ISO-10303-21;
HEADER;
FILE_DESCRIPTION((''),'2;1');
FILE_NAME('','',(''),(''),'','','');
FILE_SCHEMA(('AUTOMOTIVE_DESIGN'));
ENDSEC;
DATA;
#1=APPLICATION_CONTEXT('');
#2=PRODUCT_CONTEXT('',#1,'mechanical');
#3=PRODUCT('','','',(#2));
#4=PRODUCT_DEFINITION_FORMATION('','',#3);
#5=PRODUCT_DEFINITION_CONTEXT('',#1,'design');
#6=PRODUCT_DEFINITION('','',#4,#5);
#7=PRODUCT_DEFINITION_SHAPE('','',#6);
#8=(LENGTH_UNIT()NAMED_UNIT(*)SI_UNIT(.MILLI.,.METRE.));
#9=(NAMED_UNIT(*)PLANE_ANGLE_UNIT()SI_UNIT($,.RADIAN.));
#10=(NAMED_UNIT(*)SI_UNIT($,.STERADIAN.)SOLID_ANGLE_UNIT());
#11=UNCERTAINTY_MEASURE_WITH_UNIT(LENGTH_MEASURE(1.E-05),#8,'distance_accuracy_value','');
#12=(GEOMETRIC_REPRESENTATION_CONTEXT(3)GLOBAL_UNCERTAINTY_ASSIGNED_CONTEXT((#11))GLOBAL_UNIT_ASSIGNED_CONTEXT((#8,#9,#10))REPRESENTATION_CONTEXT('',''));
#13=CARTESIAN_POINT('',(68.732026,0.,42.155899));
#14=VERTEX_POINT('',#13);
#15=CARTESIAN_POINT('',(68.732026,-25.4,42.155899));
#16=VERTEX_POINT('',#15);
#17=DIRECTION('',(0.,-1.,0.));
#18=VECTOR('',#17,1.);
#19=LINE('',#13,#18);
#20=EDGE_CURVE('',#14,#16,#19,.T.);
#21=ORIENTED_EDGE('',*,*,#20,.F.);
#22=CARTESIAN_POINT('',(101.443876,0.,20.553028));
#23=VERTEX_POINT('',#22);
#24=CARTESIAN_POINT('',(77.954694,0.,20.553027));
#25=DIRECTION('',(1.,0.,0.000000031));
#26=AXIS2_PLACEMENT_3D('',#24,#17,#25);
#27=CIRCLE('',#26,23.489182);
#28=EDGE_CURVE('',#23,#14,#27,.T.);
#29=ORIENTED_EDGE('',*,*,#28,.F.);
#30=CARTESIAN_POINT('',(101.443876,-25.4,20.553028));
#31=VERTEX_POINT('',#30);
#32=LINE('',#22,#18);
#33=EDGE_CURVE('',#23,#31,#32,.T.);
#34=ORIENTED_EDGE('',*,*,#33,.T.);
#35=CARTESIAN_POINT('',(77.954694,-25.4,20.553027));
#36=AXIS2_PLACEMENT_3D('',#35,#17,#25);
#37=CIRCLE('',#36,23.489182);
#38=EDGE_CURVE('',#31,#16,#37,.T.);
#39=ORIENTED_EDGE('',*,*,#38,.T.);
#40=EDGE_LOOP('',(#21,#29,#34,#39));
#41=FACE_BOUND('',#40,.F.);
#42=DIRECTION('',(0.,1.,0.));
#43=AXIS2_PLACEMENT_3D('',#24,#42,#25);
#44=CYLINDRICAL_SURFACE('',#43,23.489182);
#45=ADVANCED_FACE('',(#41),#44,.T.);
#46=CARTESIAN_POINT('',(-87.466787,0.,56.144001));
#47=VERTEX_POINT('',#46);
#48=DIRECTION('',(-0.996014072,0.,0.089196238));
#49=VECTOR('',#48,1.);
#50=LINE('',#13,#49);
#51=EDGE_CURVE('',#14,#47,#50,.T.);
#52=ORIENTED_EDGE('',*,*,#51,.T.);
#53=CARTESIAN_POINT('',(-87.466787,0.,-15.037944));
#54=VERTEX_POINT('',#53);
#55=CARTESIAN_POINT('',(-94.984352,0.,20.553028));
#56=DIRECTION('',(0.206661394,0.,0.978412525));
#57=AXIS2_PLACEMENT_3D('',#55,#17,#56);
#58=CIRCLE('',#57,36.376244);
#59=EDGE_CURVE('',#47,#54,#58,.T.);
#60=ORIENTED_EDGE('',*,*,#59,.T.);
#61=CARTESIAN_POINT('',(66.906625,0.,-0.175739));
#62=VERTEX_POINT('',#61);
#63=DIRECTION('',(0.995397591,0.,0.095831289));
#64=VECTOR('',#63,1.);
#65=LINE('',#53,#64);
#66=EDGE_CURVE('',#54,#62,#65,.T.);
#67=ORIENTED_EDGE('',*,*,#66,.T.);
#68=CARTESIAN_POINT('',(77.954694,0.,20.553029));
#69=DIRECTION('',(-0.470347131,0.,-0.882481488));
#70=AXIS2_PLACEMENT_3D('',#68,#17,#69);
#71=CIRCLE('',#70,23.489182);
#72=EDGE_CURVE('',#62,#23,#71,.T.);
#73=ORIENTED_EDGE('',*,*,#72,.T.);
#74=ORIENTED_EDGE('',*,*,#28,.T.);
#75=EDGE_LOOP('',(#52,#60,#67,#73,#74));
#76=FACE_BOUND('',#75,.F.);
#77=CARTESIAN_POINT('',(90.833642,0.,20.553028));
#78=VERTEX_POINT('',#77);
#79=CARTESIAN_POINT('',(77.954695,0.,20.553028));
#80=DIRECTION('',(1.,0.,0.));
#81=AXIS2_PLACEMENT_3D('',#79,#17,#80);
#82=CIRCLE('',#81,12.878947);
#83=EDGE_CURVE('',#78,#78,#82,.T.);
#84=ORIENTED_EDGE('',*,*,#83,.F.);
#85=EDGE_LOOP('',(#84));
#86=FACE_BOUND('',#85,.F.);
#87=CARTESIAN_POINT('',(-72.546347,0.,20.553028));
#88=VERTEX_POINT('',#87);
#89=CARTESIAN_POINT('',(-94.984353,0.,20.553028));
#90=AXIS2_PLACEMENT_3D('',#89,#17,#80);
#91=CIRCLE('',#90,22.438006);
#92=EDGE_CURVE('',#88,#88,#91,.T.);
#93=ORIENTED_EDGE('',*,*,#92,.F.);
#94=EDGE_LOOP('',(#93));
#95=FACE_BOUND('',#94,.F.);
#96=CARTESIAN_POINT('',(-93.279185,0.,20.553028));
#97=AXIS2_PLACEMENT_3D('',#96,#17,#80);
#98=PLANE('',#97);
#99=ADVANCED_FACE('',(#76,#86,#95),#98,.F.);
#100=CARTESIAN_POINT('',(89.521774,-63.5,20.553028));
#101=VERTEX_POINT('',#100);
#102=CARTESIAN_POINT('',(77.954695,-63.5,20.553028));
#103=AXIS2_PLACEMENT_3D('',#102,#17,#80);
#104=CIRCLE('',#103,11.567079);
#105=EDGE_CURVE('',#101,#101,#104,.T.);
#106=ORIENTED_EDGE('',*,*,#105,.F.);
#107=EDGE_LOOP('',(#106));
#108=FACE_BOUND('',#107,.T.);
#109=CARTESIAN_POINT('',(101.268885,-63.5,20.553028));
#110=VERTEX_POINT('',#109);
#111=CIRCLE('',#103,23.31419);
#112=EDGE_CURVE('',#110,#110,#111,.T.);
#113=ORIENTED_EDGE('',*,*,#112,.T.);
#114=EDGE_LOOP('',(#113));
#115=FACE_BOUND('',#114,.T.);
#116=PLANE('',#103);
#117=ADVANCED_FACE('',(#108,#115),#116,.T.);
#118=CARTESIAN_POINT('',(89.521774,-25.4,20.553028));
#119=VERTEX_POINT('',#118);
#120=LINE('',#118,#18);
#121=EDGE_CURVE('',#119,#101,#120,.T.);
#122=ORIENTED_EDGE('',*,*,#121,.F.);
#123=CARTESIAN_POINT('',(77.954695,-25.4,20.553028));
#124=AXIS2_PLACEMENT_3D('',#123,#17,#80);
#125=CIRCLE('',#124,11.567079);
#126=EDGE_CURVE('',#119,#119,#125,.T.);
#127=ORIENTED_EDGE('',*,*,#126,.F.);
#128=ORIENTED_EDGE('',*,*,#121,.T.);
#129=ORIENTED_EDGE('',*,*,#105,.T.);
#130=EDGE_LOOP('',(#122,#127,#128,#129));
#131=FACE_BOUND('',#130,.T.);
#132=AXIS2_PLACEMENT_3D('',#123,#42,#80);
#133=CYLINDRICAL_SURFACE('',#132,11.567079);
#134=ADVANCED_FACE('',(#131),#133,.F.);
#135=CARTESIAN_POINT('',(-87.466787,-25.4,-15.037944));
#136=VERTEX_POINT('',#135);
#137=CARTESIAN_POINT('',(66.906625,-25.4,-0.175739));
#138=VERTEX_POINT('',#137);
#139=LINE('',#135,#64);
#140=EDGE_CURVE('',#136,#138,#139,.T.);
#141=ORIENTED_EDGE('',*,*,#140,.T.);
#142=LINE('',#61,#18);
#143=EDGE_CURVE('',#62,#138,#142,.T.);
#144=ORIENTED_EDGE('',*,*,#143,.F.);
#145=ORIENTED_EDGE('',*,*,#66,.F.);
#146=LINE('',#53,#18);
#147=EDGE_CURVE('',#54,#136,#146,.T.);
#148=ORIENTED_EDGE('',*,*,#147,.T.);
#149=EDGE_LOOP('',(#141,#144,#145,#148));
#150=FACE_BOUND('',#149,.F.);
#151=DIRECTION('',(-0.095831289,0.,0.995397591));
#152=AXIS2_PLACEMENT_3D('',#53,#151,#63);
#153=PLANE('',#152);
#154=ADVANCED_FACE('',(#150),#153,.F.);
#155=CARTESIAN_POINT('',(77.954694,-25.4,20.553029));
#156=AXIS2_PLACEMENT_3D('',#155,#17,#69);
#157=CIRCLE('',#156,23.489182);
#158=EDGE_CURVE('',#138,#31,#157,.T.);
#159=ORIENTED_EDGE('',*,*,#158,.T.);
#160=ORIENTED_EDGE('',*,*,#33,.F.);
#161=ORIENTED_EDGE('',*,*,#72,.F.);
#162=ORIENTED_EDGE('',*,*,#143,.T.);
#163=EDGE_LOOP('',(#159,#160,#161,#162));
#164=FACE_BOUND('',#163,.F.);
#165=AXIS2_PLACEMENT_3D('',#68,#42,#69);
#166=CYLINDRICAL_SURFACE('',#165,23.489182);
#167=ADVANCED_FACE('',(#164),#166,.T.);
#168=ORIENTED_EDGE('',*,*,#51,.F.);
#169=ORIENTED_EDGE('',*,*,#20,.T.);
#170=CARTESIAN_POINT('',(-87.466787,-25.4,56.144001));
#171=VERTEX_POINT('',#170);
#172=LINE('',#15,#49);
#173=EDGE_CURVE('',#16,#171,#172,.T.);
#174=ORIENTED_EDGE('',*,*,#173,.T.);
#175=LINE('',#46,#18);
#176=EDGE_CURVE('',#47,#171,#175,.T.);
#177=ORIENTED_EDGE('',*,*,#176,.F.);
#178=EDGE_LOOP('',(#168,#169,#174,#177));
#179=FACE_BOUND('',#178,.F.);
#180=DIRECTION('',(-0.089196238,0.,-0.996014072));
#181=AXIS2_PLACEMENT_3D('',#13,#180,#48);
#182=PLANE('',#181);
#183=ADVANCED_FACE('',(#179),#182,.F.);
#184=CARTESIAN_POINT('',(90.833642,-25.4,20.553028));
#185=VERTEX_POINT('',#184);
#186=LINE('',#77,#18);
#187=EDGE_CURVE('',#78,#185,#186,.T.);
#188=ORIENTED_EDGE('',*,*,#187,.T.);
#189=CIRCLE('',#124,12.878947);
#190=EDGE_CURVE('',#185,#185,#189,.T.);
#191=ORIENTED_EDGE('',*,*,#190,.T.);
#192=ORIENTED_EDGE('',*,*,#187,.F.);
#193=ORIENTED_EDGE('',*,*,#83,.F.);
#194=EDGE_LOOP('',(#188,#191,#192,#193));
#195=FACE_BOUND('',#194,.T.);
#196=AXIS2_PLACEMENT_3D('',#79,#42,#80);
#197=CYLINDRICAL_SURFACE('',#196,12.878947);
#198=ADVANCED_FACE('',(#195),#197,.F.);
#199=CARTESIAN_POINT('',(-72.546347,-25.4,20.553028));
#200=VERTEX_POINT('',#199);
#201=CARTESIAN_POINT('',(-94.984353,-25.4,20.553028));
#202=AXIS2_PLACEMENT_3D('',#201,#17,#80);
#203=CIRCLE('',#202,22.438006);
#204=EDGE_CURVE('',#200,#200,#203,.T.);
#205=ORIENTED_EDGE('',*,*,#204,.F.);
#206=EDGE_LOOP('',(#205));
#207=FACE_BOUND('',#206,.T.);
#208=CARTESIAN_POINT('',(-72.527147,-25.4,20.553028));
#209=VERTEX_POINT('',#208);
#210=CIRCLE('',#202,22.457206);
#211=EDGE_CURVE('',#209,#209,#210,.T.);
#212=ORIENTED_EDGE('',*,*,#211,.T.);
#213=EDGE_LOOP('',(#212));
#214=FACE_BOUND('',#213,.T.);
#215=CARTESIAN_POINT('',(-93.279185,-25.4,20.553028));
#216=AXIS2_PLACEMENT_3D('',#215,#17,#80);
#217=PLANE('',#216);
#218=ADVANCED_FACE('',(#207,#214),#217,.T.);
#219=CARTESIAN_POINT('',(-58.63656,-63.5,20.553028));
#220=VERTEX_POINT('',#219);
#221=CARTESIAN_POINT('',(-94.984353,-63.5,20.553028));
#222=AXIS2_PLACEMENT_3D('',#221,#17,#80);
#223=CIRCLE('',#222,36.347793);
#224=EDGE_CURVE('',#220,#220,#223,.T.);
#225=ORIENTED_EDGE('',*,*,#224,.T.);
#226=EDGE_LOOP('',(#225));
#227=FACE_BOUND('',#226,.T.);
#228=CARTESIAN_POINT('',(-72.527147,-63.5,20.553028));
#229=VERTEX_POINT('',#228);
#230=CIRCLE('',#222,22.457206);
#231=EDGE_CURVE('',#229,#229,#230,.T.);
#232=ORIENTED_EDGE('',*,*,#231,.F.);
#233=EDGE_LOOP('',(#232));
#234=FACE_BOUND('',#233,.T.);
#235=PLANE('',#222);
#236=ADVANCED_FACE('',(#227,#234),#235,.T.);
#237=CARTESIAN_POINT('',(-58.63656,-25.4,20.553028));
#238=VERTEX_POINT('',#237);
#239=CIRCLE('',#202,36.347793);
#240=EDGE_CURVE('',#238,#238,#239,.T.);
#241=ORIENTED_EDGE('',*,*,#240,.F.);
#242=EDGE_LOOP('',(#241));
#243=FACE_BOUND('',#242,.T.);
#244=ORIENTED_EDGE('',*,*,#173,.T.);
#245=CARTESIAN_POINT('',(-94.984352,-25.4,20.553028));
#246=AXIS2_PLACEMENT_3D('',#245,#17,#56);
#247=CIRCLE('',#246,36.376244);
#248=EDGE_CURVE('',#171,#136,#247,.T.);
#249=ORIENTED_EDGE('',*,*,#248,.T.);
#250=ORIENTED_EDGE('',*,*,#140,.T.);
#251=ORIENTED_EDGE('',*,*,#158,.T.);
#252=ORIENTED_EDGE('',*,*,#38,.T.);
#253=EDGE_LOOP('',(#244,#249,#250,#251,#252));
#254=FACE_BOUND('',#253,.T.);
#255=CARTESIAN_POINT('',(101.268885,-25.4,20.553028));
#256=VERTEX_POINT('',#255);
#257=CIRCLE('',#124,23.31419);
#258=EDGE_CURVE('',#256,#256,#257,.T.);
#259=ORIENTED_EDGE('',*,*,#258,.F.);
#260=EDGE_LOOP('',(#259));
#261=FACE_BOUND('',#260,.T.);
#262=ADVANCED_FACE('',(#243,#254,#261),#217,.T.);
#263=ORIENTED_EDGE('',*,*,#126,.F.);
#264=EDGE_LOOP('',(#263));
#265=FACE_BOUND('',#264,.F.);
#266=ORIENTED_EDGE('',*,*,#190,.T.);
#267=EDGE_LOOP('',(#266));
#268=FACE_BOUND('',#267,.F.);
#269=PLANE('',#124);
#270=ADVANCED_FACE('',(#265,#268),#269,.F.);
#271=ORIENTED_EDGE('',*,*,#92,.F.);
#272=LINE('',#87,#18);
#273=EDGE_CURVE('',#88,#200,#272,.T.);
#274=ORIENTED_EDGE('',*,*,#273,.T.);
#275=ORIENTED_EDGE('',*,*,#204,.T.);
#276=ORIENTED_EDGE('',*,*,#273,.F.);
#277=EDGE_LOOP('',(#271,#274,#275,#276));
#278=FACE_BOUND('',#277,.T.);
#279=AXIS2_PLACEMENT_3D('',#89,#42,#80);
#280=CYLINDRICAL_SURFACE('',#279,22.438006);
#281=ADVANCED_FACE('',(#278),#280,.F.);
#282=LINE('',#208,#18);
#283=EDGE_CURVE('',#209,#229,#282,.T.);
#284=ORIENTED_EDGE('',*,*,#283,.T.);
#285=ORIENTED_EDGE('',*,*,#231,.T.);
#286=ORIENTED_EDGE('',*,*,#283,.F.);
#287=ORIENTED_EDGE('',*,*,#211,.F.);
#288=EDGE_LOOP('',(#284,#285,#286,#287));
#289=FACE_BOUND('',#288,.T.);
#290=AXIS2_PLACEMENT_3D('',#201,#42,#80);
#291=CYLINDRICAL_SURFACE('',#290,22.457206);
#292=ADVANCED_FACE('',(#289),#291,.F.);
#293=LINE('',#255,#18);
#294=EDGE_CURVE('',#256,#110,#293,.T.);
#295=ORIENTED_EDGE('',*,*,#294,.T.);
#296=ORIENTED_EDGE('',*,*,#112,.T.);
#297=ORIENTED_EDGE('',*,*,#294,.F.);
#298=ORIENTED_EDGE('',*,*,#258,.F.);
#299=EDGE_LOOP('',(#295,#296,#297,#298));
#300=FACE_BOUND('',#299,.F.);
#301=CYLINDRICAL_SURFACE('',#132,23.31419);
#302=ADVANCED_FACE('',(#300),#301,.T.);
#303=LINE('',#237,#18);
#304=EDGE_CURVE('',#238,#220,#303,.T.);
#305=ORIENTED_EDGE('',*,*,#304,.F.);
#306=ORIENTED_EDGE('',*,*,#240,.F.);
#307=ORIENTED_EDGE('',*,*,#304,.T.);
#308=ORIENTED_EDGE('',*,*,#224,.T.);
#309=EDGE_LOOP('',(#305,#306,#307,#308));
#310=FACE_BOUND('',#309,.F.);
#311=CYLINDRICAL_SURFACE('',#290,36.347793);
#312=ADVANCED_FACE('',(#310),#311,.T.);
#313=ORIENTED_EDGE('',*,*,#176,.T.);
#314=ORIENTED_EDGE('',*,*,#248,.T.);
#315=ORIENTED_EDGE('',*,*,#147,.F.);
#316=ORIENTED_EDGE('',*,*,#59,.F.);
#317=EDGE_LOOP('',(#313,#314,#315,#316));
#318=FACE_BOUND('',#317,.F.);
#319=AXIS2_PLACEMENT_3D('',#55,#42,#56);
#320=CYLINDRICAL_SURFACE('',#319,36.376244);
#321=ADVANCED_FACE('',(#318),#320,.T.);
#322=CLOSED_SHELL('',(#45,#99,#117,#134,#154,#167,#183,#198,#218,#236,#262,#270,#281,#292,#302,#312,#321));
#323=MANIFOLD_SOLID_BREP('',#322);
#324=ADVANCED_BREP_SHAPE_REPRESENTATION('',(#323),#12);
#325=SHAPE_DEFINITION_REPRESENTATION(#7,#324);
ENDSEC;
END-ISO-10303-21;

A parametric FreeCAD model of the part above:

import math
import FreeCAD as App
import Part
import Sketcher

V = App.Vector
Q = App.Units.Quantity

doc = App.newDocument("Part")
body = doc.addObject("PartDesign::Body", "Body")

sketch1 = body.newObject("Sketcher::SketchObject", "Sketch")
sketch1.AttachmentSupport = (doc.getObject("XZ_Plane"), [""])
sketch1.MapMode = "FlatFace"
sketch1.addGeometry(Part.ArcOfCircle(Part.Circle(V(-95, 21, 0), V(0, 0, 1), 36), math.radians(78), math.radians(282)), False)
sketch1.addGeometry(Part.LineSegment(V(-87, -15, 0), V(67, 0, 0)), False)
sketch1.addGeometry(Part.ArcOfCircle(Part.Circle(V(78, 21, 0), V(0, 0, 1), 23), math.radians(-118), math.radians(0)), False)
sketch1.addGeometry(Part.ArcOfCircle(Part.Circle(V(78, 21, 0), V(0, 0, 1), 23), math.radians(0), math.radians(113)), False)
sketch1.addGeometry(Part.LineSegment(V(69, 42, 0), V(-87, 56, 0)), False)
sketch1.addGeometry(Part.Circle(V(-95, 21, 0), V(0, 0, 1), 22), False)
sketch1.addGeometry(Part.Circle(V(78, 21, 0), V(0, 0, 1), 13), False)
sketch1.addConstraint(Sketcher.Constraint("Coincident", 0, 2, 1, 1))
sketch1.addConstraint(Sketcher.Constraint("Coincident", 1, 2, 2, 1))
sketch1.addConstraint(Sketcher.Constraint("Tangent", 2, 2, 3, 1))
sketch1.addConstraint(Sketcher.Constraint("Coincident", 3, 2, 4, 1))
sketch1.addConstraint(Sketcher.Constraint("Coincident", 4, 2, 0, 1))
sketch1.addConstraint(Sketcher.Constraint("Coincident", 5, 3, 0, 3))
sketch1.addConstraint(Sketcher.Constraint("Coincident", 6, 3, 2, 3))
sketch1.addConstraint(Sketcher.Constraint("Equal", 2, 3))
sketch1.addConstraint(Sketcher.Constraint("Horizontal", 0, 3, 2, 3))
sketch1.addConstraint(Sketcher.Constraint("Horizontal", 6, 3, 2, 2))
sketch1.addConstraint(Sketcher.Constraint("Vertical", 0, 2, 4, 2))
sketch1.addConstraint(Sketcher.Constraint("Radius", 2, 23.489182))
sketch1.addConstraint(Sketcher.Constraint("Diameter", 5, 44.876012))
sketch1.addConstraint(Sketcher.Constraint("Diameter", 6, 25.757894))
sketch1.addConstraint(Sketcher.Constraint("Radius", 0, 36.376244))
sketch1.addConstraint(Sketcher.Constraint("DistanceY", 1, 2, 3, 2, Q("1.6665999 in")))
sketch1.addConstraint(Sketcher.Constraint("Distance", 4, 156.823902))
sketch1.addConstraint(Sketcher.Constraint("DistanceY", -1, 1, 3, 2, 42.155899))
sketch1.addConstraint(Sketcher.Constraint("DistanceY", -1, 1, 4, 2, 56.144001))
sketch1.addConstraint(Sketcher.Constraint("DistanceX", 1, 2, 3, 2, 1.825401))
sketch1.addConstraint(Sketcher.Constraint("DistanceX", 0, 3, -1, 1, 94.984352))
pad1 = body.newObject("PartDesign::Pad", "Pad")
pad1.Profile = sketch1
pad1.Length = Q("1 in")

sketch2 = body.newObject("Sketcher::SketchObject", "Sketch001")
sketch2.AttachmentSupport = (doc.getObject("XZ_Plane"), [""])
sketch2.MapMode = "FlatFace"
sketch2.AttachmentOffset = App.Placement(V(0, 0, 1 * 25.4), App.Rotation())
sketch2.addGeometry(Part.Circle(V(-95, 21, 0), V(0, 0, 1), 36), False)
sketch2.addGeometry(Part.Circle(V(-95, 21, 0), V(0, 0, 1), 22), False)
sketch2.addGeometry(Part.Circle(V(78, 21, 0), V(0, 0, 1), 23), False)
sketch2.addGeometry(Part.Circle(V(78, 21, 0), V(0, 0, 1), 12), False)
sketch2.addConstraint(Sketcher.Constraint("Coincident", 1, 3, 0, 3))
sketch2.addConstraint(Sketcher.Constraint("Coincident", 3, 3, 2, 3))
sketch2.addConstraint(Sketcher.Constraint("Horizontal", 1, 3, 2, 3))
sketch2.addConstraint(Sketcher.Constraint("Diameter", 2, 46.62838))
sketch2.addConstraint(Sketcher.Constraint("Diameter", 0, 72.695586))
sketch2.addConstraint(Sketcher.Constraint("Diameter", 1, 44.914412))
sketch2.addConstraint(Sketcher.Constraint("Diameter", 3, 23.134158))
sketch2.addConstraint(Sketcher.Constraint("DistanceY", -1, 1, 0, 3, 20.553028))
sketch2.addConstraint(Sketcher.Constraint("DistanceX", 0, 3, 2, 3, 172.939048))
sketch2.addConstraint(Sketcher.Constraint("DistanceX", 0, 3, -1, 1, 94.984353))
pad2 = body.newObject("PartDesign::Pad", "Pad001")
pad2.Profile = sketch2
pad2.Length = Q("1.5 in")

doc.recompute()
